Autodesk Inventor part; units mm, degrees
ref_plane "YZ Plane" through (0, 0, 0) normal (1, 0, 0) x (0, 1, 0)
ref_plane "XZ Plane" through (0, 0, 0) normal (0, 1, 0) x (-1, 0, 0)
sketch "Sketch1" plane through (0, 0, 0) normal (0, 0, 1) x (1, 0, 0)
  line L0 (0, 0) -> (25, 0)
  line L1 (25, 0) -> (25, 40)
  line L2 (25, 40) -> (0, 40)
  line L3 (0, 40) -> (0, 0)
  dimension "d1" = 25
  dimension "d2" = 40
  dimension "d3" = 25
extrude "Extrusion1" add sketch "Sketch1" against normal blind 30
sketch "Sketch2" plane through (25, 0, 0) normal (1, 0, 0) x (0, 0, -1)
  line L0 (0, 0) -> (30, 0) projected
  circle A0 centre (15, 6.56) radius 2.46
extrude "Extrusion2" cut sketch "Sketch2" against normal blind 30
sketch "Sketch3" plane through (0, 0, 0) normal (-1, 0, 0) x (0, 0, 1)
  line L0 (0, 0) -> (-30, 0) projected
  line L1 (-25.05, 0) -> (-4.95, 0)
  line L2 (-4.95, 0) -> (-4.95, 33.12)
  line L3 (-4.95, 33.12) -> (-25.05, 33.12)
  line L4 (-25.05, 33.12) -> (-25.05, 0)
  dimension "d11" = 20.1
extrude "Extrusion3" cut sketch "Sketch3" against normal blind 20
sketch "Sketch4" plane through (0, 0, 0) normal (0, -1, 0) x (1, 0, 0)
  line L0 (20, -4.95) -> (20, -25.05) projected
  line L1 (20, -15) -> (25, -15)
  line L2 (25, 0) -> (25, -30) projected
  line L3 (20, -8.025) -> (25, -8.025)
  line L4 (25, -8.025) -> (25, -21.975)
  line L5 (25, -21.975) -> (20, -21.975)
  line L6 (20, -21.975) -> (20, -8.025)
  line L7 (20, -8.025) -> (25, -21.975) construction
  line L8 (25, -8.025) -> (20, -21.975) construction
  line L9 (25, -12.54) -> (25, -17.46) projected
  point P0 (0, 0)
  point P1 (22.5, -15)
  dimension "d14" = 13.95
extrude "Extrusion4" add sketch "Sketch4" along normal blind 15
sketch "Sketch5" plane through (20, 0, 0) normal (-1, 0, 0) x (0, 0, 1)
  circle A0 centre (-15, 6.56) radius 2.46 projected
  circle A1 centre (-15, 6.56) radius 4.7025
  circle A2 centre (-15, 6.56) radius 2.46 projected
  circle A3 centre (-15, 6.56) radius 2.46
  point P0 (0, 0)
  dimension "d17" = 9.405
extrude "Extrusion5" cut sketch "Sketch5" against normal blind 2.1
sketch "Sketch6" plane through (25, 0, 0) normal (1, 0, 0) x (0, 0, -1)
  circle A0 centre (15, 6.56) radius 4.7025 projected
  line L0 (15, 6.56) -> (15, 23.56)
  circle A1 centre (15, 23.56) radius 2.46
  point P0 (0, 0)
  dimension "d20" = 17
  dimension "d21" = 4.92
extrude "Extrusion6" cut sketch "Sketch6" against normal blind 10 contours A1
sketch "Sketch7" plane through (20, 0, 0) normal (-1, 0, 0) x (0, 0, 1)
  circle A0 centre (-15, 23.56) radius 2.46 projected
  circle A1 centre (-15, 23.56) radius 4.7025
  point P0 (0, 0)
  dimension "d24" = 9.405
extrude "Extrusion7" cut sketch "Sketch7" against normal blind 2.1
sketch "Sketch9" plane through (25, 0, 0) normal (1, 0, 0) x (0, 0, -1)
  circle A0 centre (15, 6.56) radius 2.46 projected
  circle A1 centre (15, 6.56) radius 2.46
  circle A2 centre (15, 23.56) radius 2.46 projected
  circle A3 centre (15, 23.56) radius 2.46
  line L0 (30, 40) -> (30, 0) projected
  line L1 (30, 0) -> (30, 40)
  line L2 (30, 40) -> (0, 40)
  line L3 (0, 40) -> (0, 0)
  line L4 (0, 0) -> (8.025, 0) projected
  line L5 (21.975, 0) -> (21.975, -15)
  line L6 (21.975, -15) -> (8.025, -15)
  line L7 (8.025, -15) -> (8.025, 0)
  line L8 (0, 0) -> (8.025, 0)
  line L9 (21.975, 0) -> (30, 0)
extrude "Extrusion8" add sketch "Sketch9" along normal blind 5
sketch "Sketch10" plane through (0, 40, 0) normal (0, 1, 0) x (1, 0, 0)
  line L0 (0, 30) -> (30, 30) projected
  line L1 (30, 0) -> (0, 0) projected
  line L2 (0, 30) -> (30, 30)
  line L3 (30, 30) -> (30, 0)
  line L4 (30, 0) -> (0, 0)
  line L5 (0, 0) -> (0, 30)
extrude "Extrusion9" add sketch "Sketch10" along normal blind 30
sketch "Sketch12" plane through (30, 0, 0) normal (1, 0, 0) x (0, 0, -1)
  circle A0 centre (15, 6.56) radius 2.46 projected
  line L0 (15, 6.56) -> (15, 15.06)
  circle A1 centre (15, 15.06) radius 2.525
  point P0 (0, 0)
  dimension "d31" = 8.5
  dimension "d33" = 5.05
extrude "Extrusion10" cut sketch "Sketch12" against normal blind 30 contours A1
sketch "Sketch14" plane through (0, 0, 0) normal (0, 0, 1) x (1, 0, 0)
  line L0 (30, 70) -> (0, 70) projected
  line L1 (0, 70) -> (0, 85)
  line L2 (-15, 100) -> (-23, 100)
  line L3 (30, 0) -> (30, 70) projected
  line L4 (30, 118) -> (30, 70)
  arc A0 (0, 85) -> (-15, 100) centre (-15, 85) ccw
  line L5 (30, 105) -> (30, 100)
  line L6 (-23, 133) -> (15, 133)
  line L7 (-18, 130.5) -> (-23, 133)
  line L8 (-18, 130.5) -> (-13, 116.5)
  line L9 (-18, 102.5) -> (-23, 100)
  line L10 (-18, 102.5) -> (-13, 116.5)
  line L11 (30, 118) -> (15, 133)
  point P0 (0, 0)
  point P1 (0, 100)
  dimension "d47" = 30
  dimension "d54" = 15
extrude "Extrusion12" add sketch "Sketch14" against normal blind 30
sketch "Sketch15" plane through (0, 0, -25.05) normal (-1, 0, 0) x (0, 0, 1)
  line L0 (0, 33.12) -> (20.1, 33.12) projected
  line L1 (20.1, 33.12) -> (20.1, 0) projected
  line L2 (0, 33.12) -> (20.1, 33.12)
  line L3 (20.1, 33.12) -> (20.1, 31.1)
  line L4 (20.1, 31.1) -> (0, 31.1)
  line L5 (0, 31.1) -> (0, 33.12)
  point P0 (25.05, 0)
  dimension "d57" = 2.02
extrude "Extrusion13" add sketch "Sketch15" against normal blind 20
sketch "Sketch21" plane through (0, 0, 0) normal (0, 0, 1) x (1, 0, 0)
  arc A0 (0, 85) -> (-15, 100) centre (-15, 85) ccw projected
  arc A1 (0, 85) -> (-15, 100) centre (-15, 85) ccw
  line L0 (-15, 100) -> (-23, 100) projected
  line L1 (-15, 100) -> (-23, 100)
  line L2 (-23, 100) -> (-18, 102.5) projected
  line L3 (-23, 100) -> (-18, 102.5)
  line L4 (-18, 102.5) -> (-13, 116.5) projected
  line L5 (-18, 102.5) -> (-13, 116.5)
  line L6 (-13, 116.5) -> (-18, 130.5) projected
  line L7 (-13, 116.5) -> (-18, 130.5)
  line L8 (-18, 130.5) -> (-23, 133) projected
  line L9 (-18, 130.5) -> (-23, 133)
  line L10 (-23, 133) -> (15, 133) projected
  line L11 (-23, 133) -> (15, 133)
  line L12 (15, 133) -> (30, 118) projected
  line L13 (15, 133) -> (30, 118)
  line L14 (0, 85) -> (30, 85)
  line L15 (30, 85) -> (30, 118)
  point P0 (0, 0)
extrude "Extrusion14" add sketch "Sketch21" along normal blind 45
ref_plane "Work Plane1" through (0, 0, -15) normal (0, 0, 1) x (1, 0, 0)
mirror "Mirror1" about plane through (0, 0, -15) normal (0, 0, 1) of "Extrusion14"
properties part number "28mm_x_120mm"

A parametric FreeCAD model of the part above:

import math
import FreeCAD as App
import Part
import Sketcher
Q = App.Units.Quantity

doc = App.newDocument("Part")
body = doc.addObject("PartDesign::Body", "Body")

sketch1 = body.newObject("Sketcher::SketchObject", "Sketch")
sketch1.AttachmentSupport = (doc.getObject("XY_Plane"), [""])
sketch1.MapMode = "FlatFace"
sketch1.addGeometry([
    Part.LineSegment(App.Vector(0, 40, 0), App.Vector(0, 0, 0)),
    Part.LineSegment(App.Vector(0, 0, 0), App.Vector(25, 0, 0)),
    Part.LineSegment(App.Vector(25, 0, 0), App.Vector(25, 40, 0)),
    Part.LineSegment(App.Vector(25, 40, 0), App.Vector(0, 40, 0)),
], False)
sketch1.addConstraint([
    Sketcher.Constraint("Coincident", 0, 2, 1, 1),
    Sketcher.Constraint("Coincident", 1, 2, 2, 1),
    Sketcher.Constraint("Coincident", 2, 2, 3, 1),
    Sketcher.Constraint("Coincident", 3, 2, 0, 1),
    Sketcher.Constraint("Vertical", 0),
    Sketcher.Constraint("Horizontal", 1),
    Sketcher.Constraint("Vertical", 2),
    Sketcher.Constraint("Horizontal", 3),
    Sketcher.Constraint("Coincident", 0, 2, -1, 1),
    Sketcher.Constraint("DistanceX", 1, 1, 1, 2, 25.0),
    Sketcher.Constraint("DistanceY", 0, 2, 0, 1, 40.0),
])
pad1 = body.newObject("PartDesign::Pad", "Pad")
pad1.Profile = sketch1
pad1.Length = 30
pad1.Reversed = True

sketch2 = body.newObject("Sketcher::SketchObject", "Sketch001")
sketch2.AttachmentSupport = (doc.getObject("YZ_Plane"), [""])
sketch2.MapMode = "FlatFace"
sketch2.AttachmentOffset = App.Placement(App.Vector(0, 0, 25), App.Rotation())
sketch2.addGeometry(Part.Circle(App.Vector(6.56, -15, 0), App.Vector(0, 0, 1), 2.46), False)
sketch2.addConstraint([
    Sketcher.Constraint("Diameter", 0, 4.92),
    Sketcher.Constraint("DistanceY", 0, 3, -1, 1, 15.0),
    Sketcher.Constraint("DistanceX", -1, 1, 0, 3, 6.56),
])
pocket1 = body.newObject("PartDesign::Pocket", "Pocket")
pocket1.Profile = sketch2
pocket1.Length = 30

sketch3 = body.newObject("Sketcher::SketchObject", "Sketch002")
sketch3.AttachmentSupport = (doc.getObject("YZ_Plane"), [""])
sketch3.MapMode = "FlatFace"
sketch3.addGeometry([
    Part.LineSegment(App.Vector(0, -25.05, 0), App.Vector(0, -4.95, 0)),
    Part.LineSegment(App.Vector(0, -4.95, 0), App.Vector(33.12, -4.95, 0)),
    Part.LineSegment(App.Vector(33.12, -4.95, 0), App.Vector(33.12, -25.05, 0)),
    Part.LineSegment(App.Vector(33.12, -25.05, 0), App.Vector(0, -25.05, 0)),
], False)
sketch3.addConstraint([
    Sketcher.Constraint("Coincident", 0, 2, 1, 1),
    Sketcher.Constraint("Coincident", 1, 2, 2, 1),
    Sketcher.Constraint("Coincident", 2, 2, 3, 1),
    Sketcher.Constraint("Coincident", 3, 2, 0, 1),
    Sketcher.Constraint("Vertical", 0),
    Sketcher.Constraint("Horizontal", 1),
    Sketcher.Constraint("Vertical", 2),
    Sketcher.Constraint("Horizontal", 3),
    Sketcher.Constraint("PointOnObject", 0, 2, -2),
    Sketcher.Constraint("DistanceY", 0, 1, 0, 2, 20.1),
    Sketcher.Constraint("DistanceX", 1, 1, 1, 2, 33.12),
    Sketcher.Constraint("DistanceY", 0, 2, -1, 1, 4.95),
])
pocket2 = body.newObject("PartDesign::Pocket", "Pocket001")
pocket2.Profile = sketch3
pocket2.Length = 20
pocket2.Reversed = True

sketch4 = body.newObject("Sketcher::SketchObject", "Sketch003")
sketch4.AttachmentSupport = (doc.getObject("XZ_Plane"), [""])
sketch4.MapMode = "FlatFace"
sketch4.addGeometry([
    Part.LineSegment(App.Vector(25, -8.025, 0), App.Vector(20, -8.025, 0)),
    Part.LineSegment(App.Vector(20, -8.025, 0), App.Vector(20, -21.975, 0)),
    Part.LineSegment(App.Vector(20, -21.975, 0), App.Vector(25, -21.975, 0)),
    Part.LineSegment(App.Vector(25, -21.975, 0), App.Vector(25, -8.025, 0)),
], False)
sketch4.addConstraint([
    Sketcher.Constraint("Coincident", 0, 2, 1, 1),
    Sketcher.Constraint("Coincident", 1, 2, 2, 1),
    Sketcher.Constraint("Coincident", 2, 2, 3, 1),
    Sketcher.Constraint("Coincident", 3, 2, 0, 1),
    Sketcher.Constraint("Horizontal", 0),
    Sketcher.Constraint("Vertical", 1),
    Sketcher.Constraint("Horizontal", 2),
    Sketcher.Constraint("Vertical", 3),
    Sketcher.Constraint("DistanceY", 1, 2, 1, 1, 13.95),
    Sketcher.Constraint("DistanceX", 0, 2, 0, 1, 5.0),
    Sketcher.Constraint("DistanceX", -1, 1, 0, 2, 20.0),
    Sketcher.Constraint("DistanceY", 0, 2, -1, 1, 8.025),
])
pad2 = body.newObject("PartDesign::Pad", "Pad001")
pad2.Profile = sketch4
pad2.Length = 15

sketch5 = body.newObject("Sketcher::SketchObject", "Sketch004")
sketch5.AttachmentSupport = (doc.getObject("YZ_Plane"), [""])
sketch5.MapMode = "FlatFace"
sketch5.AttachmentOffset = App.Placement(App.Vector(0, 0, 20), App.Rotation())
sketch5.addGeometry([
    Part.Circle(App.Vector(6.56, -15, 0), App.Vector(0, 0, 1), 4.7025),
    Part.Circle(App.Vector(6.56, -15, 0), App.Vector(0, 0, 1), 2.46),
], False)
sketch5.addConstraint([
    Sketcher.Constraint("Coincident", 1, 3, 0, 3),
    Sketcher.Constraint("Diameter", 0, 9.405),
    Sketcher.Constraint("Diameter", 1, 4.92),
    Sketcher.Constraint("DistanceY", 0, 3, -1, 1, 15.0),
    Sketcher.Constraint("DistanceX", -1, 1, 0, 3, 6.56),
])
pocket3 = body.newObject("PartDesign::Pocket", "Pocket002")
pocket3.Profile = sketch5
pocket3.Length = 2.1
pocket3.Reversed = True

sketch6 = body.newObject("Sketcher::SketchObject", "Sketch005")
sketch6.AttachmentSupport = (doc.getObject("YZ_Plane"), [""])
sketch6.MapMode = "FlatFace"
sketch6.AttachmentOffset = App.Placement(App.Vector(0, 0, 25), App.Rotation())
sketch6.addGeometry(Part.Circle(App.Vector(23.56, -15, 0), App.Vector(0, 0, 1), 2.46), False)
sketch6.addConstraint([
    Sketcher.Constraint("Diameter", 0, 4.92),
    Sketcher.Constraint("DistanceY", 0, 3, -1, 1, 15.0),
    Sketcher.Constraint("DistanceX", -1, 1, 0, 3, 23.56),
])
pocket4 = body.newObject("PartDesign::Pocket", "Pocket003")
pocket4.Profile = sketch6
pocket4.Length = 10

sketch7 = body.newObject("Sketcher::SketchObject", "Sketch006")
sketch7.AttachmentSupport = (doc.getObject("YZ_Plane"), [""])
sketch7.MapMode = "FlatFace"
sketch7.AttachmentOffset = App.Placement(App.Vector(0, 0, 20), App.Rotation())
sketch7.addGeometry([
    Part.Circle(App.Vector(23.56, -15, 0), App.Vector(0, 0, 1), 4.7025),
    Part.Circle(App.Vector(23.56, -15, 0), App.Vector(0, 0, 1), 2.46),
], False)
sketch7.addConstraint([
    Sketcher.Constraint("Coincident", 1, 3, 0, 3),
    Sketcher.Constraint("Diameter", 0, 9.405),
    Sketcher.Constraint("Diameter", 1, 4.92),
    Sketcher.Constraint("DistanceY", 0, 3, -1, 1, 15.0),
    Sketcher.Constraint("DistanceX", -1, 1, 0, 3, 23.56),
])
pocket5 = body.newObject("PartDesign::Pocket", "Pocket004")
pocket5.Profile = sketch7
pocket5.Length = 2.1
pocket5.Reversed = True

sketch8 = body.newObject("Sketcher::SketchObject", "Sketch007")
sketch8.AttachmentSupport = (doc.getObject("YZ_Plane"), [""])
sketch8.MapMode = "FlatFace"
sketch8.AttachmentOffset = App.Placement(App.Vector(0, 0, 25), App.Rotation())
sketch8.addGeometry([
    Part.LineSegment(App.Vector(0, -30, 0), App.Vector(40, -30, 0)),
    Part.LineSegment(App.Vector(40, -30, 0), App.Vector(40, 0, 0)),
    Part.LineSegment(App.Vector(40, 0, 0), App.Vector(0, 0, 0)),
    Part.LineSegment(App.Vector(0, 0, 0), App.Vector(0, -8.025, 0)),
    Part.LineSegment(App.Vector(0, -8.025, 0), App.Vector(-15, -8.025, 0)),
    Part.LineSegment(App.Vector(-15, -8.025, 0), App.Vector(-15, -21.975, 0)),
    Part.LineSegment(App.Vector(-15, -21.975, 0), App.Vector(0, -21.975, 0)),
    Part.LineSegment(App.Vector(0, -21.975, 0), App.Vector(0, -30, 0)),
    Part.Circle(App.Vector(6.56, -15, 0), App.Vector(0, 0, 1), 2.46),
    Part.Circle(App.Vector(23.56, -15, 0), App.Vector(0, 0, 1), 2.46),
], False)
sketch8.addConstraint([
    Sketcher.Constraint("Coincident", 0, 2, 1, 1),
    Sketcher.Constraint("Coincident", 1, 2, 2, 1),
    Sketcher.Constraint("Coincident", 2, 2, 3, 1),
    Sketcher.Constraint("Coincident", 3, 2, 4, 1),
    Sketcher.Constraint("Coincident", 4, 2, 5, 1),
    Sketcher.Constraint("Coincident", 5, 2, 6, 1),
    Sketcher.Constraint("Coincident", 6, 2, 7, 1),
    Sketcher.Constraint("Coincident", 7, 2, 0, 1),
    Sketcher.Constraint("Horizontal", 0),
    Sketcher.Constraint("Vertical", 1),
    Sketcher.Constraint("Horizontal", 2),
    Sketcher.Constraint("Vertical", 3),
    Sketcher.Constraint("Horizontal", 4),
    Sketcher.Constraint("Vertical", 5),
    Sketcher.Constraint("Horizontal", 6),
    Sketcher.Constraint("Vertical", 7),
    Sketcher.Constraint("Coincident", 2, 2, -1, 1),
    Sketcher.Constraint("Equal", 8, 9),
    Sketcher.Constraint("PointOnObject", 6, 2, -2),
    Sketcher.Constraint("Horizontal", 8, 3, 9, 3),
    Sketcher.Constraint("Equal", 3, 7),
    Sketcher.Constraint("Diameter", 8, 4.92),
    Sketcher.Constraint("DistanceX", 0, 1, 0, 2, 40.0),
    Sketcher.Constraint("DistanceX", 4, 2, 4, 1, 15.0),
    Sketcher.Constraint("DistanceY", 1, 1, 1, 2, 30.0),
    Sketcher.Constraint("DistanceY", 8, 3, -1, 1, 15.0),
    Sketcher.Constraint("DistanceX", 8, 3, 9, 3, 17.0),
    Sketcher.Constraint("DistanceY", 5, 2, 5, 1, 13.95),
    Sketcher.Constraint("DistanceX", -1, 1, 8, 3, 6.56),
])
pad3 = body.newObject("PartDesign::Pad", "Pad002")
pad3.Profile = sketch8
pad3.Length = 5

sketch9 = body.newObject("Sketcher::SketchObject", "Sketch008")
sketch9.AttachmentSupport = (doc.getObject("XZ_Plane"), [""])
sketch9.MapMode = "FlatFace"
sketch9.AttachmentOffset = App.Placement(App.Vector(0, 0, -40), App.Rotation())
sketch9.addGeometry([
    Part.LineSegment(App.Vector(30, -30, 0), App.Vector(0, -30, 0)),
    Part.LineSegment(App.Vector(0, -30, 0), App.Vector(0, 0, 0)),
    Part.LineSegment(App.Vector(0, 0, 0), App.Vector(30, 0, 0)),
    Part.LineSegment(App.Vector(30, 0, 0), App.Vector(30, -30, 0)),
], False)
sketch9.addConstraint([
    Sketcher.Constraint("Coincident", 0, 2, 1, 1),
    Sketcher.Constraint("Coincident", 1, 2, 2, 1),
    Sketcher.Constraint("Coincident", 2, 2, 3, 1),
    Sketcher.Constraint("Coincident", 3, 2, 0, 1),
    Sketcher.Constraint("Horizontal", 0),
    Sketcher.Constraint("Vertical", 1),
    Sketcher.Constraint("Horizontal", 2),
    Sketcher.Constraint("Vertical", 3),
    Sketcher.Constraint("Coincident", 1, 2, -1, 1),
    Sketcher.Constraint("Equal", 2, 1),
    Sketcher.Constraint("DistanceX", 0, 2, 0, 1, 30.0),
])
pad4 = body.newObject("PartDesign::Pad", "Pad003")
pad4.Profile = sketch9
pad4.Length = 30
pad4.Reversed = True

sketch10 = body.newObject("Sketcher::SketchObject", "Sketch009")
sketch10.AttachmentSupport = (doc.getObject("YZ_Plane"), [""])
sketch10.MapMode = "FlatFace"
sketch10.AttachmentOffset = App.Placement(App.Vector(0, 0, 30), App.Rotation())
sketch10.addGeometry(Part.Circle(App.Vector(15.06, -15, 0), App.Vector(0, 0, 1), 2.525), False)
sketch10.addConstraint([
    Sketcher.Constraint("Diameter", 0, 5.05),
    Sketcher.Constraint("DistanceY", 0, 3, -1, 1, 15.0),
    Sketcher.Constraint("DistanceX", -1, 1, 0, 3, 15.06),
])
pocket6 = body.newObject("PartDesign::Pocket", "Pocket005")
pocket6.Profile = sketch10
pocket6.Length = 30

sketch11 = body.newObject("Sketcher::SketchObject", "Sketch010")
sketch11.AttachmentSupport = (doc.getObject("XY_Plane"), [""])
sketch11.MapMode = "FlatFace"
sketch11.addGeometry([
    Part.LineSegment(App.Vector(0, 70, 0), App.Vector(30, 70, 0)),
    Part.LineSegment(App.Vector(30, 70, 0), App.Vector(30, 118, 0)),
    Part.LineSegment(App.Vector(30, 118, 0), App.Vector(15, 133, 0)),
    Part.LineSegment(App.Vector(15, 133, 0), App.Vector(-23, 133, 0)),
    Part.LineSegment(App.Vector(-23, 133, 0), App.Vector(-18, 130.5, 0)),
    Part.LineSegment(App.Vector(-18, 130.5, 0), App.Vector(-13, 116.5, 0)),
    Part.LineSegment(App.Vector(-13, 116.5, 0), App.Vector(-18, 102.5, 0)),
    Part.LineSegment(App.Vector(-18, 102.5, 0), App.Vector(-23, 100, 0)),
    Part.LineSegment(App.Vector(-23, 100, 0), App.Vector(-15, 100, 0)),
    Part.ArcOfCircle(Part.Circle(App.Vector(-15, 85, 0), App.Vector(0, 0, 1), 15), math.radians(0), math.radians(90)),
    Part.LineSegment(App.Vector(0, 85, 0), App.Vector(0, 70, 0)),
], False)
sketch11.addConstraint([
    Sketcher.Constraint("Coincident", 0, 2, 1, 1),
    Sketcher.Constraint("Coincident", 1, 2, 2, 1),
    Sketcher.Constraint("Coincident", 2, 2, 3, 1),
    Sketcher.Constraint("Coincident", 3, 2, 4, 1),
    Sketcher.Constraint("Coincident", 4, 2, 5, 1),
    Sketcher.Constraint("Coincident", 5, 2, 6, 1),
    Sketcher.Constraint("Coincident", 6, 2, 7, 1),
    Sketcher.Constraint("Coincident", 7, 2, 8, 1),
    Sketcher.Constraint("Tangent", 8, 2, 9, 2),
    Sketcher.Constraint("Tangent", 9, 1, 10, 1),
    Sketcher.Constraint("Coincident", 10, 2, 0, 1),
    Sketcher.Constraint("Horizontal", 0),
    Sketcher.Constraint("Vertical", 1),
    Sketcher.Constraint("Horizontal", 3),
    Sketcher.Constraint("Horizontal", 8),
    Sketcher.Constraint("Vertical", 10),
    Sketcher.Constraint("PointOnObject", 9, 1, -2),
    Sketcher.Constraint("Vertical", 4, 2, 6, 2),
    Sketcher.Constraint("Vertical", 3, 2, 7, 2),
    Sketcher.Constraint("Equal", 5, 6),
    Sketcher.Constraint("Equal", 4, 7),
    Sketcher.Constraint("Radius", 9, 15.0),
    Sketcher.Constraint("DistanceX", 0, 1, 0, 2, 30.0),
    Sketcher.Constraint("DistanceY", 10, 2, 10, 1, 15.0),
    Sketcher.Constraint("DistanceX", -1, 1, 2, 2, 15.0),
    Sketcher.Constraint("DistanceY", 1, 2, 2, 2, 15.0),
    Sketcher.Constraint("DistanceX", 3, 2, 3, 1, 38.0),
    Sketcher.Constraint("DistanceY", 1, 1, 1, 2, 48.0),
    Sketcher.Constraint("DistanceY", -1, 1, 9, 3, 85.0),
    Sketcher.Constraint("DistanceX", 4, 2, -1, 1, 18.0),
    Sketcher.Constraint("DistanceX", 5, 2, -1, 1, 13.0),
    Sketcher.Constraint("DistanceY", 5, 2, 4, 2, 14.0),
])
pad5 = body.newObject("PartDesign::Pad", "Pad004")
pad5.Profile = sketch11
pad5.Length = 30
pad5.Reversed = True

sketch12 = body.newObject("Sketcher::SketchObject", "Sketch011")
sketch12.AttachmentSupport = (doc.getObject("YZ_Plane"), [""])
sketch12.MapMode = "FlatFace"
sketch12.addGeometry([
    Part.LineSegment(App.Vector(33.12, -4.95, 0), App.Vector(33.12, -25.05, 0)),
    Part.LineSegment(App.Vector(33.12, -25.05, 0), App.Vector(31.1, -25.05, 0)),
    Part.LineSegment(App.Vector(31.1, -25.05, 0), App.Vector(31.1, -4.95, 0)),
    Part.LineSegment(App.Vector(31.1, -4.95, 0), App.Vector(33.12, -4.95, 0)),
], False)
sketch12.addConstraint([
    Sketcher.Constraint("Coincident", 0, 2, 1, 1),
    Sketcher.Constraint("Coincident", 1, 2, 2, 1),
    Sketcher.Constraint("Coincident", 2, 2, 3, 1),
    Sketcher.Constraint("Coincident", 3, 2, 0, 1),
    Sketcher.Constraint("Vertical", 0),
    Sketcher.Constraint("Horizontal", 1),
    Sketcher.Constraint("Vertical", 2),
    Sketcher.Constraint("Horizontal", 3),
    Sketcher.Constraint("DistanceX", 1, 2, 1, 1, 2.02),
    Sketcher.Constraint("DistanceY", 0, 2, 0, 1, 20.1),
    Sketcher.Constraint("DistanceX", -1, 1, 1, 2, 31.1),
    Sketcher.Constraint("DistanceY", 0, 2, -1, 1, 25.05),
])
pad6 = body.newObject("PartDesign::Pad", "Pad005")
pad6.Profile = sketch12
pad6.Length = 20

sketch13 = body.newObject("Sketcher::SketchObject", "Sketch012")
sketch13.AttachmentSupport = (doc.getObject("XY_Plane"), [""])
sketch13.MapMode = "FlatFace"
sketch13.addGeometry([
    Part.ArcOfCircle(Part.Circle(App.Vector(-15, 85, 0), App.Vector(0, 0, 1), 15), math.radians(0), math.radians(90)),
    Part.LineSegment(App.Vector(0, 85, 0), App.Vector(30, 85, 0)),
    Part.LineSegment(App.Vector(30, 85, 0), App.Vector(30, 118, 0)),
    Part.LineSegment(App.Vector(30, 118, 0), App.Vector(15, 133, 0)),
    Part.LineSegment(App.Vector(15, 133, 0), App.Vector(-23, 133, 0)),
    Part.LineSegment(App.Vector(-23, 133, 0), App.Vector(-18, 130.5, 0)),
    Part.LineSegment(App.Vector(-18, 130.5, 0), App.Vector(-13, 116.5, 0)),
    Part.LineSegment(App.Vector(-13, 116.5, 0), App.Vector(-18, 102.5, 0)),
    Part.LineSegment(App.Vector(-18, 102.5, 0), App.Vector(-23, 100, 0)),
    Part.LineSegment(App.Vector(-23, 100, 0), App.Vector(-15, 100, 0)),
], False)
sketch13.addConstraint([
    Sketcher.Constraint("Coincident", 0, 1, 1, 1),
    Sketcher.Constraint("Coincident", 1, 2, 2, 1),
    Sketcher.Constraint("Coincident", 2, 2, 3, 1),
    Sketcher.Constraint("Coincident", 3, 2, 4, 1),
    Sketcher.Constraint("Coincident", 4, 2, 5, 1),
    Sketcher.Constraint("Coincident", 5, 2, 6, 1),
    Sketcher.Constraint("Coincident", 6, 2, 7, 1),
    Sketcher.Constraint("Coincident", 7, 2, 8, 1),
    Sketcher.Constraint("Coincident", 8, 2, 9, 1),
    Sketcher.Constraint("Tangent", 9, 2, 0, 2),
    Sketcher.Constraint("Horizontal", 1),
    Sketcher.Constraint("Vertical", 2),
    Sketcher.Constraint("Horizontal", 4),
    Sketcher.Constraint("Horizontal", 9),
    Sketcher.Constraint("PointOnObject", 0, 1, -2),
    Sketcher.Constraint("Vertical", 5, 2, 7, 2),
    Sketcher.Constraint("Vertical", 4, 2, 8, 2),
    Sketcher.Constraint("Equal", 6, 7),
    Sketcher.Constraint("Equal", 5, 8),
    Sketcher.Constraint("Radius", 0, 15.0),
    Sketcher.Constraint("DistanceX", 1, 1, 1, 2, 30.0),
    Sketcher.Constraint("DistanceX", 4, 2, 4, 1, 38.0),
    Sketcher.Constraint("DistanceX", 9, 1, 9, 2, 8.0),
    Sketcher.Constraint("DistanceY", 2, 1, 2, 2, 33.0),
    Sketcher.Constraint("Angle", 3, Q("135 deg")),
    Sketcher.Constraint("DistanceY", -1, 1, 0, 3, 85.0),
    Sketcher.Constraint("DistanceY", -1, 1, 0, 1, 85.0),
    Sketcher.Constraint("DistanceX", 5, 2, -1, 1, 18.0),
    Sketcher.Constraint("DistanceX", 6, 2, -1, 1, 13.0),
    Sketcher.Constraint("DistanceY", 6, 2, 5, 2, 14.0),
])
pad7 = body.newObject("PartDesign::Pad", "Pad006")
pad7.Profile = sketch13
pad7.Length = 45
doc.recompute()

datumplane = body.newObject("PartDesign::Plane", "DatumPlane")
datumplane.AttachmentSupport = (doc.getObject("XY_Plane"), [""])
datumplane.MapMode = "FlatFace"
datumplane.AttachmentOffset = App.Placement(App.Vector(0, 0, -15), App.Rotation())
mirrored = body.newObject("PartDesign::Mirrored", "Mirrored")
mirrored.Originals = [pad7]
mirrored.MirrorPlane = (datumplane, [""])
body.Tip = mirrored

doc.recompute()
